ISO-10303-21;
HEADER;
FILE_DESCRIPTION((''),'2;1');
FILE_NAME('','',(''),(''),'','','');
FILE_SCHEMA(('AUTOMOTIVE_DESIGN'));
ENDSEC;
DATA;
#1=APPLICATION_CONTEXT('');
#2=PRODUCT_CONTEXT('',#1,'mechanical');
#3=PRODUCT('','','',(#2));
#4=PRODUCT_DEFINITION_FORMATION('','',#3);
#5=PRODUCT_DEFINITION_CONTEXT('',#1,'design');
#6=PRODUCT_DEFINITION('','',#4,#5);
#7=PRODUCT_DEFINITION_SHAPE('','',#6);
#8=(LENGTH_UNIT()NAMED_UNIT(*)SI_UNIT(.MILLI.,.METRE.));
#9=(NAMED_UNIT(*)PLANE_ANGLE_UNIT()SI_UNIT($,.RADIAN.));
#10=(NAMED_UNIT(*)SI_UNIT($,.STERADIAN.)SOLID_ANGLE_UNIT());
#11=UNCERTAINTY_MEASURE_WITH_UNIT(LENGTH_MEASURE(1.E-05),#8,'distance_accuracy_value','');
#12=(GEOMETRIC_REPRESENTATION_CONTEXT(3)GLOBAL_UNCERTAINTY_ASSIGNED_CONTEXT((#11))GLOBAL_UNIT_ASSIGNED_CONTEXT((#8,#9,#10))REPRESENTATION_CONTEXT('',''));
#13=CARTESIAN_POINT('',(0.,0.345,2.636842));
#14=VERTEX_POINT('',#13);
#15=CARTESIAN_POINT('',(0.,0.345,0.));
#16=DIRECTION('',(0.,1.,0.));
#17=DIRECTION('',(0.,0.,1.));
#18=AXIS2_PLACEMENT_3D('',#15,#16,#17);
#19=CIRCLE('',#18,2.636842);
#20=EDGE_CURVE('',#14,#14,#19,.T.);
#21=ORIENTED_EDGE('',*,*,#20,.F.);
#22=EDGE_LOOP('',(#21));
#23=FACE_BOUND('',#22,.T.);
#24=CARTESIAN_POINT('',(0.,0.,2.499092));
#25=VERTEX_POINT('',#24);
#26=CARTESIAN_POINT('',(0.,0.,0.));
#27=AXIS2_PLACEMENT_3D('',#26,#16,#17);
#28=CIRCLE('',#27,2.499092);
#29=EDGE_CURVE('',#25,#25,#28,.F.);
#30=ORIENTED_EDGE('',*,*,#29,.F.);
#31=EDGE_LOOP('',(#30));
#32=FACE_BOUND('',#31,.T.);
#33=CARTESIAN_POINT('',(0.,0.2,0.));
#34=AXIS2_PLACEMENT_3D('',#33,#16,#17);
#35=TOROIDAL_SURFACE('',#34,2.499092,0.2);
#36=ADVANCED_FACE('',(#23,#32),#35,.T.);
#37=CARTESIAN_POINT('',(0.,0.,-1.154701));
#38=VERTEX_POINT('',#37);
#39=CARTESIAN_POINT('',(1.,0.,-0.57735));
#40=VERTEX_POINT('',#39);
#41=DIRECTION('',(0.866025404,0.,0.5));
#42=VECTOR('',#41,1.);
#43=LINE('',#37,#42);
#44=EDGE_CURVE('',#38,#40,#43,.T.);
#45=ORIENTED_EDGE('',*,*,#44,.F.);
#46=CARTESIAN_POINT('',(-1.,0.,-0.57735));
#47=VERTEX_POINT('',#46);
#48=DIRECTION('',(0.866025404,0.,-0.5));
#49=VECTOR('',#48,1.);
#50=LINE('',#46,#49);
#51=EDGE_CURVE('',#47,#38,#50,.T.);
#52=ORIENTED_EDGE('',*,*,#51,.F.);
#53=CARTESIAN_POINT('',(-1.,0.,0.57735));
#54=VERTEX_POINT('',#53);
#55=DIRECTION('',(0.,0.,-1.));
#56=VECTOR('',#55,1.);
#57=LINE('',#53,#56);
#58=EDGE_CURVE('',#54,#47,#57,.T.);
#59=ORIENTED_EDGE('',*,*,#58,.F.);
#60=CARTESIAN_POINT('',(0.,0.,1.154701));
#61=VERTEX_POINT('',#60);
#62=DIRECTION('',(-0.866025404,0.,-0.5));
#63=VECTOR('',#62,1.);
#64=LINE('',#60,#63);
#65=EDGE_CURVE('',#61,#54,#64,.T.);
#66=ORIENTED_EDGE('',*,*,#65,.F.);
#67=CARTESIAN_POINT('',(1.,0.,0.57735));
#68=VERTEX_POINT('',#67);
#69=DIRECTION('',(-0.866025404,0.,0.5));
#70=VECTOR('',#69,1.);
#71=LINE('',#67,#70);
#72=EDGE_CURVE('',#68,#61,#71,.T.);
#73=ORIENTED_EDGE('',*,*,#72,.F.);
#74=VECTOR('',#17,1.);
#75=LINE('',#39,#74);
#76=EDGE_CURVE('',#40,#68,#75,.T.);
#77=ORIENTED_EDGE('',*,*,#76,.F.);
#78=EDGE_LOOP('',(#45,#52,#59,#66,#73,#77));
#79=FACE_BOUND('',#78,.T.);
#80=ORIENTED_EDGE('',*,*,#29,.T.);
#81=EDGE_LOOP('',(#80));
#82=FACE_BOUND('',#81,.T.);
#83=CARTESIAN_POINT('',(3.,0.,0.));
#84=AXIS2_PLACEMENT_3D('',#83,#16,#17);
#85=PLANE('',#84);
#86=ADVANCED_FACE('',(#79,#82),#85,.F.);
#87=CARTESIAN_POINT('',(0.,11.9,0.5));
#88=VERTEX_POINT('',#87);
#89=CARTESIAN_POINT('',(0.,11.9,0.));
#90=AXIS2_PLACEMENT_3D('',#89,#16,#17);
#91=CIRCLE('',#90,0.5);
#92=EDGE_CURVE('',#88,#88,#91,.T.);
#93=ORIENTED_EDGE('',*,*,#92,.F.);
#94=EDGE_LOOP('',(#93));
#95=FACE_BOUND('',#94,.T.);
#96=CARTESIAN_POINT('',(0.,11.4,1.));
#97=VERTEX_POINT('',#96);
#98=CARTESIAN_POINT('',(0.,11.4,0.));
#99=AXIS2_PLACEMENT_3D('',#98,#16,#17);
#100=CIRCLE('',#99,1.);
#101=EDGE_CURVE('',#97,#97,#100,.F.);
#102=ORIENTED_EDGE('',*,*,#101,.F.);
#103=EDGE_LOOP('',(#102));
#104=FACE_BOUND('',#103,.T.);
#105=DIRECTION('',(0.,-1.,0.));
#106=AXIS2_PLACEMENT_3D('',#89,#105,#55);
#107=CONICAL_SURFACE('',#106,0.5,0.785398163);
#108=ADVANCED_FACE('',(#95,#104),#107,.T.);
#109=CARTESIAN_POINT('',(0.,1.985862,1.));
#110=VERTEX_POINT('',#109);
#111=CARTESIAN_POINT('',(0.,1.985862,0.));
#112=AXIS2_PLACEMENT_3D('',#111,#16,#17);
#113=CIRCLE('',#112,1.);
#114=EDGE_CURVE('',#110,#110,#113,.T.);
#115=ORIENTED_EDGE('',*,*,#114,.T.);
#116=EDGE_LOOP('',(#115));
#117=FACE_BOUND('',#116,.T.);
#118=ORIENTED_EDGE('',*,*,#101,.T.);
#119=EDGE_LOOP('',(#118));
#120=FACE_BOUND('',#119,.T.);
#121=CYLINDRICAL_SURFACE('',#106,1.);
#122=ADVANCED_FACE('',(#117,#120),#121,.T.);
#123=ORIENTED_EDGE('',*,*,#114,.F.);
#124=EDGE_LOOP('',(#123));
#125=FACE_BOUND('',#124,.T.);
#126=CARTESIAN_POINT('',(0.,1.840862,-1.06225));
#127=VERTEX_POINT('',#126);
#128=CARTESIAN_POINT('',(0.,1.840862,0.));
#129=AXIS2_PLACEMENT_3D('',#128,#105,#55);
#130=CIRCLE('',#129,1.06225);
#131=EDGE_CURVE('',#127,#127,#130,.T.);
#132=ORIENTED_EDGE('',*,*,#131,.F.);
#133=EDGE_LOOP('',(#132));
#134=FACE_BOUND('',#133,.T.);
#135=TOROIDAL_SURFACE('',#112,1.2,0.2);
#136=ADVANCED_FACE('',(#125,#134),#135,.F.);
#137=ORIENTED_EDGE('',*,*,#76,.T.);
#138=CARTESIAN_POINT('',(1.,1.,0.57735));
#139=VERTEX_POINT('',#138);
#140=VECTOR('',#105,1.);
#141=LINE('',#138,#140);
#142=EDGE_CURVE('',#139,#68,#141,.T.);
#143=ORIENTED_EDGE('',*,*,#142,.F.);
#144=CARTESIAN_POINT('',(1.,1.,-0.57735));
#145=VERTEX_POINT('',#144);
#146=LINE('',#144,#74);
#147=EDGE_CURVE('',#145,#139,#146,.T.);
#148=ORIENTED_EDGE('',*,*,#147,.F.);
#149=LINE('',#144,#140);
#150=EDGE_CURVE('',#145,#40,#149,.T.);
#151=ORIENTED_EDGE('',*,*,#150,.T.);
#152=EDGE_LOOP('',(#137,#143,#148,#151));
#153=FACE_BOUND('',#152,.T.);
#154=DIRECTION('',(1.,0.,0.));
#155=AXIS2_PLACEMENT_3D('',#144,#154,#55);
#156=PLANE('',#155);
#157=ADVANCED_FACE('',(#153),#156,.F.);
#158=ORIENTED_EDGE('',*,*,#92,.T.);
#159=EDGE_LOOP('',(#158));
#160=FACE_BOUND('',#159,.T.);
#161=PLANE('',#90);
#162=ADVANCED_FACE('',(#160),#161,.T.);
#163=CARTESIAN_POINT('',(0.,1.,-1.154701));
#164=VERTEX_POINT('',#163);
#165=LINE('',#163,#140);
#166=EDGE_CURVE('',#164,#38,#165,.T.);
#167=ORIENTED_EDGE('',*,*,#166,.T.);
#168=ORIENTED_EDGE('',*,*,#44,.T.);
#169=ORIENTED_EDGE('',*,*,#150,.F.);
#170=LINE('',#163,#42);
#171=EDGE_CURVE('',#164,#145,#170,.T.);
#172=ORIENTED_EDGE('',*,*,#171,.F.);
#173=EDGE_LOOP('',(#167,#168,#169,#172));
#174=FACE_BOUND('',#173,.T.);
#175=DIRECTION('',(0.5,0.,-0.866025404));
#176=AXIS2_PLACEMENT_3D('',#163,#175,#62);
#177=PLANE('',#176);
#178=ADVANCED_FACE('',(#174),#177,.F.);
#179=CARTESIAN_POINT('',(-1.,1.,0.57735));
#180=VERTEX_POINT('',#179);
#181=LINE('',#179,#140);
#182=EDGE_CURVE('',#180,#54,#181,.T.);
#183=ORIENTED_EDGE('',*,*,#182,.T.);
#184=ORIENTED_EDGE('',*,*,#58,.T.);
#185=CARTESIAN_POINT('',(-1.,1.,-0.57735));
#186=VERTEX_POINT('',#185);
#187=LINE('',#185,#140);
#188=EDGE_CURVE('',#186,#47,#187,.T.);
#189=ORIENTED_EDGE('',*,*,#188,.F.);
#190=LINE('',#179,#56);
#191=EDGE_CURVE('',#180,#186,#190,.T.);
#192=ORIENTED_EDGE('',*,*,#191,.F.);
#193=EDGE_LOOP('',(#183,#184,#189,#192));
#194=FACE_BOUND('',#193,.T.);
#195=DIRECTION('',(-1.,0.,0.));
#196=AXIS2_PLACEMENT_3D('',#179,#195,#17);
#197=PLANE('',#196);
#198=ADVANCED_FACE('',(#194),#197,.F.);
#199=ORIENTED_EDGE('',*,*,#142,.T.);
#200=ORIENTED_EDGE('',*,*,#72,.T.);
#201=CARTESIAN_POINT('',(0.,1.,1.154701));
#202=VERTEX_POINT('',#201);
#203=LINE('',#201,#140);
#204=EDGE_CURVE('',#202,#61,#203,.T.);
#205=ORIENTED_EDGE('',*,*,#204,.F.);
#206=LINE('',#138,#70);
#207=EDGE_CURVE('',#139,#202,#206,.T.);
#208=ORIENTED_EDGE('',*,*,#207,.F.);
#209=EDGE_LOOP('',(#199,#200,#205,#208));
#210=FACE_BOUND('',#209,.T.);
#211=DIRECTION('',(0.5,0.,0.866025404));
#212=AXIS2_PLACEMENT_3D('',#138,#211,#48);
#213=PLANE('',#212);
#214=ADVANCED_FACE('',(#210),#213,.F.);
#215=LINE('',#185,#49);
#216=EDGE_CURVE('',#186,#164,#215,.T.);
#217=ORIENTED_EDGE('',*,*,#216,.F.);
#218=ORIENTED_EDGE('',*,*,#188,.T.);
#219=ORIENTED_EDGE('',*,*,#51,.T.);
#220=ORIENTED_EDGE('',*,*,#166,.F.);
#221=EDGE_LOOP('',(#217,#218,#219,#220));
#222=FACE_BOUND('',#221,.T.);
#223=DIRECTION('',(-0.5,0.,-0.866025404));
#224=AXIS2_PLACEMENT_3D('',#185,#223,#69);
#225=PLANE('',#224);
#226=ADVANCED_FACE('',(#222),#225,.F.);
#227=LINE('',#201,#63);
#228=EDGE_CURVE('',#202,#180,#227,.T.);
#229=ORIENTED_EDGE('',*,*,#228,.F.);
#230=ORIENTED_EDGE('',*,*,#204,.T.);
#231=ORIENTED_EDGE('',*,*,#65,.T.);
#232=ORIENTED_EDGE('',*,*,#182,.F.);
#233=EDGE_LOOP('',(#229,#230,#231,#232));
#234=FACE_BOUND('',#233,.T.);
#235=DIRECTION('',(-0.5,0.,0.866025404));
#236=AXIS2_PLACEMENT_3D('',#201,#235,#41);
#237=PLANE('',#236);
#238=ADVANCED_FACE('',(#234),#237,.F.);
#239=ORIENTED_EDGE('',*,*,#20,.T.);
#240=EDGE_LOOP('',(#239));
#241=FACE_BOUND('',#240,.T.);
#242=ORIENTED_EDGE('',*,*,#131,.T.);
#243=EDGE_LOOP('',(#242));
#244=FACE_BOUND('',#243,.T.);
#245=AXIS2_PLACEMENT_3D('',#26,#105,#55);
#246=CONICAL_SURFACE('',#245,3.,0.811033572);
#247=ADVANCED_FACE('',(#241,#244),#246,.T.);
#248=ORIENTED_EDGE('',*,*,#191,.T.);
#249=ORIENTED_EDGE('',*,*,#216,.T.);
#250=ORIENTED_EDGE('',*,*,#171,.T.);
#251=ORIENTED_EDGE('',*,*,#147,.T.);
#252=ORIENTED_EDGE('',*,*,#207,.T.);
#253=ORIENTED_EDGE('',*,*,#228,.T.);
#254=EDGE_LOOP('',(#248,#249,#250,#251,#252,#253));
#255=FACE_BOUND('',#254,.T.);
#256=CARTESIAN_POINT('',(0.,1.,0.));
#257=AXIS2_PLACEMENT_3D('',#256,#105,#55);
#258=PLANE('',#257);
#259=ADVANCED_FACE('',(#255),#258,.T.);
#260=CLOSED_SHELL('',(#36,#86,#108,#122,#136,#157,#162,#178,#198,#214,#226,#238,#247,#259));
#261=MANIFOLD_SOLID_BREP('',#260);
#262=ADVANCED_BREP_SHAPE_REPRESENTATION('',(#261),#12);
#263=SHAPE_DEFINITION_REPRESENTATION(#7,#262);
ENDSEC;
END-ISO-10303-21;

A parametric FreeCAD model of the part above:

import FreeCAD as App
import Part
import Sketcher
Q = App.Units.Quantity


def edges_at(feature, points):
    """Names of the edges that pass closest to the given points."""
    edges = feature.Shape.Edges
    near = lambda p: min(range(len(edges)), key=lambda i: edges[i].distToShape(Part.Vertex(*p))[0])
    return sorted({f"Edge{near(p) + 1}" for p in points})

doc = App.newDocument("Part")
body = doc.addObject("PartDesign::Body", "Body")

# Sketch on XY plane
sketch1 = doc.addObject("Sketcher::SketchObject", "Sketch")
body.addObject(sketch1)
sketch1.AttachmentSupport = (doc.XY_Plane, [""])
sketch1.MapMode = "FlatFace"
sketch1.addGeometry(Part.LineSegment(App.Vector(1, 1.9, 0), App.Vector(0, 1.9, 0)), False)
sketch1.addGeometry(Part.LineSegment(App.Vector(0, 1.9, 0), App.Vector(0, 0, 0)), False)
sketch1.addGeometry(Part.LineSegment(App.Vector(0, 0, 0), App.Vector(3, 0, 0)), False)
sketch1.addGeometry(Part.LineSegment(App.Vector(3, 0, 0), App.Vector(1, 1.9, 0)), False)
sketch1.addConstraint(Sketcher.Constraint("Coincident", 0, 2, 1, 1))
sketch1.addConstraint(Sketcher.Constraint("Coincident", 1, 2, 2, 1))
sketch1.addConstraint(Sketcher.Constraint("Coincident", 2, 2, 3, 1))
sketch1.addConstraint(Sketcher.Constraint("Coincident", 3, 2, 0, 1))
sketch1.addConstraint(Sketcher.Constraint("Horizontal", 0))
sketch1.addConstraint(Sketcher.Constraint("Vertical", 1))
sketch1.addConstraint(Sketcher.Constraint("Horizontal", 2))
sketch1.addConstraint(Sketcher.Constraint("Coincident", 1, 2, -1, 1))
sketch1.addConstraint(Sketcher.Constraint("DistanceX", 0, 2, 0, 1, Q("1 mm")))
sketch1.addConstraint(Sketcher.Constraint("DistanceX", 2, 1, 2, 2, Q("3 mm")))
sketch1.addConstraint(Sketcher.Constraint("DistanceY", 1, 2, 1, 1, Q("1.9 mm")))
revolution = doc.addObject("PartDesign::Revolution", "Revolution")
body.addObject(revolution)
revolution.Profile = sketch1
revolution.ReferenceAxis = (sketch1, ["V_Axis"])
revolution.Angle = 360

# Sketch on XZ plane
sketch2 = doc.addObject("Sketcher::SketchObject", "Sketch001")
body.addObject(sketch2)
sketch2.AttachmentSupport = (doc.XZ_Plane, [""])
sketch2.MapMode = "FlatFace"
sketch2.AttachmentOffset = App.Placement(App.Vector(0, 0, -1.9), App.Rotation())
sketch2.addGeometry(Part.Circle(App.Vector(0, 0, 0), App.Vector(0, 0, 1), 1), False)
sketch2.addConstraint(Sketcher.Constraint("Coincident", 0, 3, -1, 1))
sketch2.addConstraint(Sketcher.Constraint("Diameter", 0, Q("2 mm")))
pad1 = doc.addObject("PartDesign::Pad", "Pad")
body.addObject(pad1)
pad1.Profile = sketch2
pad1.Length = 10
pad1.Reversed = True

# Sketch on XZ plane
sketch3 = doc.addObject("Sketcher::SketchObject", "Sketch002")
body.addObject(sketch3)
sketch3.AttachmentSupport = (doc.XZ_Plane, [""])
sketch3.MapMode = "FlatFace"
sketch3.addGeometry(Part.LineSegment(App.Vector(0, 1.2, 0), App.Vector(-1, 0.6, 0)), False)
sketch3.addGeometry(Part.LineSegment(App.Vector(-1, 0.6, 0), App.Vector(-1, -0.6, 0)), False)
sketch3.addGeometry(Part.LineSegment(App.Vector(-1, -0.6, 0), App.Vector(0, -1.2, 0)), False)
sketch3.addGeometry(Part.LineSegment(App.Vector(0, -1.2, 0), App.Vector(1, -0.6, 0)), False)
sketch3.addGeometry(Part.LineSegment(App.Vector(1, -0.6, 0), App.Vector(1, 0.6, 0)), False)
sketch3.addGeometry(Part.LineSegment(App.Vector(1, 0.6, 0), App.Vector(0, 1.2, 0)), False)
sketch3.addConstraint(Sketcher.Constraint("Coincident", 0, 2, 1, 1))
sketch3.addConstraint(Sketcher.Constraint("Coincident", 1, 2, 2, 1))
sketch3.addConstraint(Sketcher.Constraint("Coincident", 2, 2, 3, 1))
sketch3.addConstraint(Sketcher.Constraint("Coincident", 3, 2, 4, 1))
sketch3.addConstraint(Sketcher.Constraint("Coincident", 4, 2, 5, 1))
sketch3.addConstraint(Sketcher.Constraint("Coincident", 5, 2, 0, 1))
sketch3.addConstraint(Sketcher.Constraint("Vertical", 1))
sketch3.addConstraint(Sketcher.Constraint("Vertical", 4))
sketch3.addConstraint(Sketcher.Constraint("Symmetric", 0, 2, 3, 2, -1, 1))
sketch3.addConstraint(Sketcher.Constraint("Symmetric", 2, 2, 5, 2, -1, 1))
sketch3.addConstraint(Sketcher.Constraint("PointOnObject", 2, 2, -2))
sketch3.addConstraint(Sketcher.Constraint("Parallel", 2, 5))
sketch3.addConstraint(Sketcher.Constraint("Horizontal", 1, 2, 3, 2))
sketch3.addConstraint(Sketcher.Constraint("Angle", 0, Q("-150 deg")))
sketch3.addConstraint(Sketcher.Constraint("DistanceX", 0, 2, -1, 1, Q("1 mm")))
sketch3.addConstraint(Sketcher.Constraint("DistanceY", 1, 2, 1, 1, Q("1.154701 mm")))
pocket1 = doc.addObject("PartDesign::Pocket", "Pocket")
body.addObject(pocket1)
pocket1.Profile = sketch3
pocket1.Length = 1
doc.recompute()

chamfer = doc.addObject("PartDesign::Chamfer", "Chamfer")
body.addObject(chamfer)
chamfer.Base = (pocket1, edges_at(pocket1, [(0, 11.9, 1)]))
chamfer.Size = 0.5
doc.recompute()

fillet = doc.addObject("PartDesign::Fillet", "Fillet")
body.addObject(fillet)
fillet.Base = (chamfer, edges_at(chamfer, [(0, 0, 3), (0, 1.9, 1)]))
fillet.Radius = 0.2

doc.recompute()
